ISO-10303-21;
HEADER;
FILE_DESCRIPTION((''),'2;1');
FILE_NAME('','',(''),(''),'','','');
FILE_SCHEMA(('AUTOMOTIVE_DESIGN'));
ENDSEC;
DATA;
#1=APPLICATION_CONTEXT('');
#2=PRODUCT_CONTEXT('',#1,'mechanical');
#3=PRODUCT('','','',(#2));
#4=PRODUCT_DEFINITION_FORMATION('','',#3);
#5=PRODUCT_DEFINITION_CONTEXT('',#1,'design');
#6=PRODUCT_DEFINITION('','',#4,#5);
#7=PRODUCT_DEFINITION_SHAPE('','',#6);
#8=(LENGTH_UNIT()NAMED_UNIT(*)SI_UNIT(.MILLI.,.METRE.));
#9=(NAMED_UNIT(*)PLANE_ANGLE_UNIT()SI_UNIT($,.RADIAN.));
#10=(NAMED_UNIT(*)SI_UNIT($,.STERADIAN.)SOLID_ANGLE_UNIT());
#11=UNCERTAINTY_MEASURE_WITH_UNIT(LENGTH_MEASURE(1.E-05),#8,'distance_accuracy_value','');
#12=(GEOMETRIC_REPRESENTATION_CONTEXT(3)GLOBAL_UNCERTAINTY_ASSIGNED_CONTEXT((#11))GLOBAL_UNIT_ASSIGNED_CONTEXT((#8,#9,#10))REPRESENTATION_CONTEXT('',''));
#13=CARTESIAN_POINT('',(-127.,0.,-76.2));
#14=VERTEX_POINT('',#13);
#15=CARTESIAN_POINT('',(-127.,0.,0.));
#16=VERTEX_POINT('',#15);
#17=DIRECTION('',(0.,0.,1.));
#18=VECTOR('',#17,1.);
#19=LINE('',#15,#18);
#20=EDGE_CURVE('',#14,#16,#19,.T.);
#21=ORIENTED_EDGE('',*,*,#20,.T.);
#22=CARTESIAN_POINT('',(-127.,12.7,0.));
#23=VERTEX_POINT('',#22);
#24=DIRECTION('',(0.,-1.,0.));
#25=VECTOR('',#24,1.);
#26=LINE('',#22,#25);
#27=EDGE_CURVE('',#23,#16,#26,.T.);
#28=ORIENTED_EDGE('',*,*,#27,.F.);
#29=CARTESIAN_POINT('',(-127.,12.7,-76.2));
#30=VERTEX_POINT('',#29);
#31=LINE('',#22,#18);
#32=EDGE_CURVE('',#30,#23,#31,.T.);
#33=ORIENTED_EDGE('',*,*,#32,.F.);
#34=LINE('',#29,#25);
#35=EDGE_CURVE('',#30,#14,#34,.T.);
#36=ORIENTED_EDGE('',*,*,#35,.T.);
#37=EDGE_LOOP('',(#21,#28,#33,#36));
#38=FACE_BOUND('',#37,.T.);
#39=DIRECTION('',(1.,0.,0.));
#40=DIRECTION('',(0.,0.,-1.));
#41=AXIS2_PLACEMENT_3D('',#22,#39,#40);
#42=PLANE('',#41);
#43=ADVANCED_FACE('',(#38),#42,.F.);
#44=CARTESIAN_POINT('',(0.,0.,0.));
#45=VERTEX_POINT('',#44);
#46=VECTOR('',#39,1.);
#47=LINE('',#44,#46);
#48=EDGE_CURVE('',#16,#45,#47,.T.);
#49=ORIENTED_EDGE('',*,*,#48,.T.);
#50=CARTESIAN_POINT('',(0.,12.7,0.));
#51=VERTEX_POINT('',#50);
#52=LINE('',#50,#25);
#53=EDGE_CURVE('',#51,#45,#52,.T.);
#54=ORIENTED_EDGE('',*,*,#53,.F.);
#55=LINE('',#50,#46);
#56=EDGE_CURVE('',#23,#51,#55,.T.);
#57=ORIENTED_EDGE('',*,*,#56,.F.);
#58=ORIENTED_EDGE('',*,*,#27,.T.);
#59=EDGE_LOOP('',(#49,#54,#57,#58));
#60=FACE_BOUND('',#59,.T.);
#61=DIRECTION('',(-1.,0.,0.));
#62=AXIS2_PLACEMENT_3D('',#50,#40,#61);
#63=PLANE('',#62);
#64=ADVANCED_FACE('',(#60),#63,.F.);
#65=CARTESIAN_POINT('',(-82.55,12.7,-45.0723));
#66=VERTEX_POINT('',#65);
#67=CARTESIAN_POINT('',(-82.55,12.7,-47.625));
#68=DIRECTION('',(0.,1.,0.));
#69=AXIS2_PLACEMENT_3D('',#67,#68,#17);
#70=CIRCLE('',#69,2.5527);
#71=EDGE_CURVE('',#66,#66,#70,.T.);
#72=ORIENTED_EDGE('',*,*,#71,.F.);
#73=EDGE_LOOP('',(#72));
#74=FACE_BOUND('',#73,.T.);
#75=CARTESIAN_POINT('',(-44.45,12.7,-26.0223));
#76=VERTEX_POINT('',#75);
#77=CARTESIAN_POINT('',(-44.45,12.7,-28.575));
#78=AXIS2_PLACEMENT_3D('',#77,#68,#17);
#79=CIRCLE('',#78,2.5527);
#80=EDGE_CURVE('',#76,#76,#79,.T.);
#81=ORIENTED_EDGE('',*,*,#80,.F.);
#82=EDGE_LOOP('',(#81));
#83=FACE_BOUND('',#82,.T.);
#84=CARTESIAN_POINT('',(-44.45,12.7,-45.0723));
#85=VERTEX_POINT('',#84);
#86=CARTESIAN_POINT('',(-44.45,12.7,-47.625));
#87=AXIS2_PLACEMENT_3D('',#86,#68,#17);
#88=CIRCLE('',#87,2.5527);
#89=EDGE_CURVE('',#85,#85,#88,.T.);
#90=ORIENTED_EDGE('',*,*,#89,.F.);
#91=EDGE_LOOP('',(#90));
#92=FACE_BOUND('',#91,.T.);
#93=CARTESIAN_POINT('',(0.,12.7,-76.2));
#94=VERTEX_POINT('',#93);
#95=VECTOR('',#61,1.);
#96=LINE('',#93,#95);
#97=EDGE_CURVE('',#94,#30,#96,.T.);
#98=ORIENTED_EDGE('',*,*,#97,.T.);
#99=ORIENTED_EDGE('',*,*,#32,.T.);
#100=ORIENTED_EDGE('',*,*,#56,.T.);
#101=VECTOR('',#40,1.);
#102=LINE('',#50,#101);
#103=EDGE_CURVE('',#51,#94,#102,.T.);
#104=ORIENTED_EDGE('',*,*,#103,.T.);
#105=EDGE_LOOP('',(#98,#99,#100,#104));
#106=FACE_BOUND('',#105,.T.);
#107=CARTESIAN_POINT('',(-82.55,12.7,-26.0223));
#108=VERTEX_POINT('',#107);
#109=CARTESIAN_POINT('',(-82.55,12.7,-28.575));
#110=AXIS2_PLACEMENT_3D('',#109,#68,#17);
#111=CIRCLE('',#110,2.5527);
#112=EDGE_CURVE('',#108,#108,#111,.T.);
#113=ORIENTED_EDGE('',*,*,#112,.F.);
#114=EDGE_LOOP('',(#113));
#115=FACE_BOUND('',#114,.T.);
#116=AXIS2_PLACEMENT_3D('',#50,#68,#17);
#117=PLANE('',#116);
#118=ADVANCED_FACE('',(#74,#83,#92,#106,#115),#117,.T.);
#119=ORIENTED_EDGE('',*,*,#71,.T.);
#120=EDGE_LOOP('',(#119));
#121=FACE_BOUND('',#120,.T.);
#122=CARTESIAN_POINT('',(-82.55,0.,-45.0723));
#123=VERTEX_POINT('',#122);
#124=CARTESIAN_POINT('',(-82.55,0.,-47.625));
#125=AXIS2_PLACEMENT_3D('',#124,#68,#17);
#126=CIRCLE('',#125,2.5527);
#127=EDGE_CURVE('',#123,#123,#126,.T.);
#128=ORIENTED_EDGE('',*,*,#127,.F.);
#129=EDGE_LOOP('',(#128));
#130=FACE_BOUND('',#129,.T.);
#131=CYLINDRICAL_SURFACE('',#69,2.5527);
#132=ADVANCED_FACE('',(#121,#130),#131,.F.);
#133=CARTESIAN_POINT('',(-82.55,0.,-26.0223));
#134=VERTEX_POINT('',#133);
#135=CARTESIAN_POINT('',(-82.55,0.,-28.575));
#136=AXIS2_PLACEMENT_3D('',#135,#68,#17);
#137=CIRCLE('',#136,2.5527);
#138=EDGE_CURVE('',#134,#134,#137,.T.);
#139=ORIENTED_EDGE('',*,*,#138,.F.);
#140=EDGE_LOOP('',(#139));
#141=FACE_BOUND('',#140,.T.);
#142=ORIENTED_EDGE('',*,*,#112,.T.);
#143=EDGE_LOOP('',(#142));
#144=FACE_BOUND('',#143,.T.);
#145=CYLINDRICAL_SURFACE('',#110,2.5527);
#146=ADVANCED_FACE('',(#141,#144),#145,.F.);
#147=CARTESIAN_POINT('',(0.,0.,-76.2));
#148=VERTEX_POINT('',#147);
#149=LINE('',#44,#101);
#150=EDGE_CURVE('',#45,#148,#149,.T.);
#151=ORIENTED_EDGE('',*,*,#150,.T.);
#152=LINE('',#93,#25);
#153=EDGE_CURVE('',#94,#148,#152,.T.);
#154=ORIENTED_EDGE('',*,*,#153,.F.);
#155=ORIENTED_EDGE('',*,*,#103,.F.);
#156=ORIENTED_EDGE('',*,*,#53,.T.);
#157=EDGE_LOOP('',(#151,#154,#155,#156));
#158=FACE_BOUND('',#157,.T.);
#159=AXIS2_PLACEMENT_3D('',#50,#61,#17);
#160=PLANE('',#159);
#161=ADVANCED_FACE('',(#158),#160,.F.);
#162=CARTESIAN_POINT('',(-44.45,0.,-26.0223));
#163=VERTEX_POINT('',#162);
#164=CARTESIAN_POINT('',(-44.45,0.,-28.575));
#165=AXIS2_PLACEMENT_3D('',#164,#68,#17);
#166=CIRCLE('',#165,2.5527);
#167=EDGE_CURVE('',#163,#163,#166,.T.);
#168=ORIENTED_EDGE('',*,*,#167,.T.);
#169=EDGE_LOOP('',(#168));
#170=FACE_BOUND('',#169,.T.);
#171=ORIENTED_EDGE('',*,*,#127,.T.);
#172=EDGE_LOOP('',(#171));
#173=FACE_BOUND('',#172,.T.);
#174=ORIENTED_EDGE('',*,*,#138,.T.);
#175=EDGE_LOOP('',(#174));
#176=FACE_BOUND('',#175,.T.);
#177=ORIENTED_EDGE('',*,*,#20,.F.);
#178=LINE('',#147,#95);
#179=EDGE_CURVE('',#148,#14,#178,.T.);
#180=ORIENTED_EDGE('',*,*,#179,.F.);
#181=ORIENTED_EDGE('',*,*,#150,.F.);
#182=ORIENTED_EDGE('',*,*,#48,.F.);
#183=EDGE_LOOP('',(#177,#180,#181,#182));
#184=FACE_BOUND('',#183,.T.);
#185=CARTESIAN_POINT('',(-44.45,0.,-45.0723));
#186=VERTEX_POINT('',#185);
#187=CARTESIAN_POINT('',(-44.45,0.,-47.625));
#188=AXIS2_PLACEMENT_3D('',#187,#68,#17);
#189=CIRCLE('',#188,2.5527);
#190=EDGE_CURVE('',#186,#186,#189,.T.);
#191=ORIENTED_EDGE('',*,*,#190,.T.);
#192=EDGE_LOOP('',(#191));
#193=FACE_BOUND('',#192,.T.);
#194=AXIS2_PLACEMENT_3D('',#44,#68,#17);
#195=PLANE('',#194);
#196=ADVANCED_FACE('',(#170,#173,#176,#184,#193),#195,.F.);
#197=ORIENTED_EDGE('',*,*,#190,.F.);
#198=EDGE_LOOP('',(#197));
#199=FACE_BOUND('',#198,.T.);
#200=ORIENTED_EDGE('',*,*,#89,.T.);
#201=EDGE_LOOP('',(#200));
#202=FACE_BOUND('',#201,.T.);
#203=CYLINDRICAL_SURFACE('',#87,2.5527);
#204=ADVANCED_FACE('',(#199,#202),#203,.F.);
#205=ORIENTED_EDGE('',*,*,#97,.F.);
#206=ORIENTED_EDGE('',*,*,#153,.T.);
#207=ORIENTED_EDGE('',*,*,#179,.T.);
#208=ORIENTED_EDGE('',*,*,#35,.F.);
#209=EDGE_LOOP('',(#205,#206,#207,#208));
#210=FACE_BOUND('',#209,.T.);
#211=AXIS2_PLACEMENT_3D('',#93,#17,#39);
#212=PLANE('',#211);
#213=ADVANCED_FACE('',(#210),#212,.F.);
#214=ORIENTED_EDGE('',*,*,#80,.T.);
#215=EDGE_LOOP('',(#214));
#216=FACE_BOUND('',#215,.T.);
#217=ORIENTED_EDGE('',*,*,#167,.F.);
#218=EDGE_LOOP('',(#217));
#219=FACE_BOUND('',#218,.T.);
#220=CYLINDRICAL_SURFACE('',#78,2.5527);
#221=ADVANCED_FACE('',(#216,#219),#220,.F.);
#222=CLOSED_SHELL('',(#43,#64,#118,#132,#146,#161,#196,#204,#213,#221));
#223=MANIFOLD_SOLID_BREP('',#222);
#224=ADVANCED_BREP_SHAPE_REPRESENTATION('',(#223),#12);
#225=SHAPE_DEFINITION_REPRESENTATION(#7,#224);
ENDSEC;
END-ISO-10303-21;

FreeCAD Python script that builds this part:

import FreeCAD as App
import Part
import Sketcher
Q = App.Units.Quantity


def add_polygon(sketch, points):
    """Adds a closed chain of lines whose ends are joined by coincident constraints."""
    first, n = sketch.GeometryCount, len(points)
    for a, b in zip(points, points[1:] + points[:1]):
        sketch.addGeometry(Part.LineSegment(App.Vector(*a, 0), App.Vector(*b, 0)), False)
    for i in range(n):
        sketch.addConstraint(Sketcher.Constraint("Coincident", first + i, 2, first + (i + 1) % n, 1))

doc = App.newDocument("Part")
body = doc.addObject("PartDesign::Body", "Body")

# Sketch on XZ plane
sketch1 = body.newObject("Sketcher::SketchObject", "Sketch")
sketch1.AttachmentSupport = (doc.getObject("XZ_Plane"), [""])
sketch1.MapMode = "FlatFace"
add_polygon(sketch1, [(-127, -76), (-127, 0), (0, 0), (0, -76)])  # lines 0-3
sketch1.addConstraint(Sketcher.Constraint("Vertical", 0))
sketch1.addConstraint(Sketcher.Constraint("Horizontal", 1))
sketch1.addConstraint(Sketcher.Constraint("Vertical", 2))
sketch1.addConstraint(Sketcher.Constraint("Horizontal", 3))
sketch1.addConstraint(Sketcher.Constraint("Coincident", 1, 2, -1, 1))
sketch1.addConstraint(Sketcher.Constraint("DistanceX", 1, 1, 1, 2, Q("5 in")))
sketch1.addConstraint(Sketcher.Constraint("DistanceY", 0, 1, 0, 2, Q("3 in")))
pad1 = body.newObject("PartDesign::Pad", "Pad")
pad1.Profile = sketch1
pad1.Length = Q("0.5 in")
pad1.Reversed = True

# Sketch on XZ plane
sketch2 = body.newObject("Sketcher::SketchObject", "Sketch001")
sketch2.AttachmentSupport = (doc.getObject("XZ_Plane"), [""])
sketch2.MapMode = "FlatFace"
sketch2.AttachmentOffset = App.Placement(App.Vector(0, 0, -0.5 * 25.4), App.Rotation())
sketch2.addGeometry(Part.Circle(App.Vector(-82.5, -47.6, 0), App.Vector(0, 0, 1), 2.6), False)
sketch2.addGeometry(Part.Circle(App.Vector(-82.5, -28.6, 0), App.Vector(0, 0, 1), 2.6), False)
sketch2.addGeometry(Part.Circle(App.Vector(-44.5, -28.6, 0), App.Vector(0, 0, 1), 2.6), False)
sketch2.addGeometry(Part.Circle(App.Vector(-44.5, -47.6, 0), App.Vector(0, 0, 1), 2.6), False)
sketch2.addConstraint(Sketcher.Constraint("Equal", 0, 1))
sketch2.addConstraint(Sketcher.Constraint("Equal", 1, 2))
sketch2.addConstraint(Sketcher.Constraint("Equal", 2, 3))
sketch2.addConstraint(Sketcher.Constraint("Horizontal", 1, 3, 2, 3))
sketch2.addConstraint(Sketcher.Constraint("Horizontal", 0, 3, 3, 3))
sketch2.addConstraint(Sketcher.Constraint("Vertical", 0, 3, 1, 3))
sketch2.addConstraint(Sketcher.Constraint("Vertical", 2, 3, 3, 3))
sketch2.addConstraint(Sketcher.Constraint("Diameter", 0, Q("0.201 in")))
sketch2.addConstraint(Sketcher.Constraint("DistanceX", 1, 3, 2, 3, Q("1.5 in")))
sketch2.addConstraint(Sketcher.Constraint("DistanceX", 0, 3, -1, 1, Q("3.25 in")))
sketch2.addConstraint(Sketcher.Constraint("DistanceY", 0, 3, 1, 3, Q("0.75 in")))
sketch2.addConstraint(Sketcher.Constraint("DistanceY", 0, 3, -1, 1, Q("1.875 in")))
doc.recompute()
hole = body.newObject("PartDesign::Hole", "Hole")
hole.Profile = sketch2
hole.ThreadType = "None"
hole.Diameter = Q("0.201 in")
hole.DepthType = "ThroughAll"
hole.Reversed = True

doc.recompute()
